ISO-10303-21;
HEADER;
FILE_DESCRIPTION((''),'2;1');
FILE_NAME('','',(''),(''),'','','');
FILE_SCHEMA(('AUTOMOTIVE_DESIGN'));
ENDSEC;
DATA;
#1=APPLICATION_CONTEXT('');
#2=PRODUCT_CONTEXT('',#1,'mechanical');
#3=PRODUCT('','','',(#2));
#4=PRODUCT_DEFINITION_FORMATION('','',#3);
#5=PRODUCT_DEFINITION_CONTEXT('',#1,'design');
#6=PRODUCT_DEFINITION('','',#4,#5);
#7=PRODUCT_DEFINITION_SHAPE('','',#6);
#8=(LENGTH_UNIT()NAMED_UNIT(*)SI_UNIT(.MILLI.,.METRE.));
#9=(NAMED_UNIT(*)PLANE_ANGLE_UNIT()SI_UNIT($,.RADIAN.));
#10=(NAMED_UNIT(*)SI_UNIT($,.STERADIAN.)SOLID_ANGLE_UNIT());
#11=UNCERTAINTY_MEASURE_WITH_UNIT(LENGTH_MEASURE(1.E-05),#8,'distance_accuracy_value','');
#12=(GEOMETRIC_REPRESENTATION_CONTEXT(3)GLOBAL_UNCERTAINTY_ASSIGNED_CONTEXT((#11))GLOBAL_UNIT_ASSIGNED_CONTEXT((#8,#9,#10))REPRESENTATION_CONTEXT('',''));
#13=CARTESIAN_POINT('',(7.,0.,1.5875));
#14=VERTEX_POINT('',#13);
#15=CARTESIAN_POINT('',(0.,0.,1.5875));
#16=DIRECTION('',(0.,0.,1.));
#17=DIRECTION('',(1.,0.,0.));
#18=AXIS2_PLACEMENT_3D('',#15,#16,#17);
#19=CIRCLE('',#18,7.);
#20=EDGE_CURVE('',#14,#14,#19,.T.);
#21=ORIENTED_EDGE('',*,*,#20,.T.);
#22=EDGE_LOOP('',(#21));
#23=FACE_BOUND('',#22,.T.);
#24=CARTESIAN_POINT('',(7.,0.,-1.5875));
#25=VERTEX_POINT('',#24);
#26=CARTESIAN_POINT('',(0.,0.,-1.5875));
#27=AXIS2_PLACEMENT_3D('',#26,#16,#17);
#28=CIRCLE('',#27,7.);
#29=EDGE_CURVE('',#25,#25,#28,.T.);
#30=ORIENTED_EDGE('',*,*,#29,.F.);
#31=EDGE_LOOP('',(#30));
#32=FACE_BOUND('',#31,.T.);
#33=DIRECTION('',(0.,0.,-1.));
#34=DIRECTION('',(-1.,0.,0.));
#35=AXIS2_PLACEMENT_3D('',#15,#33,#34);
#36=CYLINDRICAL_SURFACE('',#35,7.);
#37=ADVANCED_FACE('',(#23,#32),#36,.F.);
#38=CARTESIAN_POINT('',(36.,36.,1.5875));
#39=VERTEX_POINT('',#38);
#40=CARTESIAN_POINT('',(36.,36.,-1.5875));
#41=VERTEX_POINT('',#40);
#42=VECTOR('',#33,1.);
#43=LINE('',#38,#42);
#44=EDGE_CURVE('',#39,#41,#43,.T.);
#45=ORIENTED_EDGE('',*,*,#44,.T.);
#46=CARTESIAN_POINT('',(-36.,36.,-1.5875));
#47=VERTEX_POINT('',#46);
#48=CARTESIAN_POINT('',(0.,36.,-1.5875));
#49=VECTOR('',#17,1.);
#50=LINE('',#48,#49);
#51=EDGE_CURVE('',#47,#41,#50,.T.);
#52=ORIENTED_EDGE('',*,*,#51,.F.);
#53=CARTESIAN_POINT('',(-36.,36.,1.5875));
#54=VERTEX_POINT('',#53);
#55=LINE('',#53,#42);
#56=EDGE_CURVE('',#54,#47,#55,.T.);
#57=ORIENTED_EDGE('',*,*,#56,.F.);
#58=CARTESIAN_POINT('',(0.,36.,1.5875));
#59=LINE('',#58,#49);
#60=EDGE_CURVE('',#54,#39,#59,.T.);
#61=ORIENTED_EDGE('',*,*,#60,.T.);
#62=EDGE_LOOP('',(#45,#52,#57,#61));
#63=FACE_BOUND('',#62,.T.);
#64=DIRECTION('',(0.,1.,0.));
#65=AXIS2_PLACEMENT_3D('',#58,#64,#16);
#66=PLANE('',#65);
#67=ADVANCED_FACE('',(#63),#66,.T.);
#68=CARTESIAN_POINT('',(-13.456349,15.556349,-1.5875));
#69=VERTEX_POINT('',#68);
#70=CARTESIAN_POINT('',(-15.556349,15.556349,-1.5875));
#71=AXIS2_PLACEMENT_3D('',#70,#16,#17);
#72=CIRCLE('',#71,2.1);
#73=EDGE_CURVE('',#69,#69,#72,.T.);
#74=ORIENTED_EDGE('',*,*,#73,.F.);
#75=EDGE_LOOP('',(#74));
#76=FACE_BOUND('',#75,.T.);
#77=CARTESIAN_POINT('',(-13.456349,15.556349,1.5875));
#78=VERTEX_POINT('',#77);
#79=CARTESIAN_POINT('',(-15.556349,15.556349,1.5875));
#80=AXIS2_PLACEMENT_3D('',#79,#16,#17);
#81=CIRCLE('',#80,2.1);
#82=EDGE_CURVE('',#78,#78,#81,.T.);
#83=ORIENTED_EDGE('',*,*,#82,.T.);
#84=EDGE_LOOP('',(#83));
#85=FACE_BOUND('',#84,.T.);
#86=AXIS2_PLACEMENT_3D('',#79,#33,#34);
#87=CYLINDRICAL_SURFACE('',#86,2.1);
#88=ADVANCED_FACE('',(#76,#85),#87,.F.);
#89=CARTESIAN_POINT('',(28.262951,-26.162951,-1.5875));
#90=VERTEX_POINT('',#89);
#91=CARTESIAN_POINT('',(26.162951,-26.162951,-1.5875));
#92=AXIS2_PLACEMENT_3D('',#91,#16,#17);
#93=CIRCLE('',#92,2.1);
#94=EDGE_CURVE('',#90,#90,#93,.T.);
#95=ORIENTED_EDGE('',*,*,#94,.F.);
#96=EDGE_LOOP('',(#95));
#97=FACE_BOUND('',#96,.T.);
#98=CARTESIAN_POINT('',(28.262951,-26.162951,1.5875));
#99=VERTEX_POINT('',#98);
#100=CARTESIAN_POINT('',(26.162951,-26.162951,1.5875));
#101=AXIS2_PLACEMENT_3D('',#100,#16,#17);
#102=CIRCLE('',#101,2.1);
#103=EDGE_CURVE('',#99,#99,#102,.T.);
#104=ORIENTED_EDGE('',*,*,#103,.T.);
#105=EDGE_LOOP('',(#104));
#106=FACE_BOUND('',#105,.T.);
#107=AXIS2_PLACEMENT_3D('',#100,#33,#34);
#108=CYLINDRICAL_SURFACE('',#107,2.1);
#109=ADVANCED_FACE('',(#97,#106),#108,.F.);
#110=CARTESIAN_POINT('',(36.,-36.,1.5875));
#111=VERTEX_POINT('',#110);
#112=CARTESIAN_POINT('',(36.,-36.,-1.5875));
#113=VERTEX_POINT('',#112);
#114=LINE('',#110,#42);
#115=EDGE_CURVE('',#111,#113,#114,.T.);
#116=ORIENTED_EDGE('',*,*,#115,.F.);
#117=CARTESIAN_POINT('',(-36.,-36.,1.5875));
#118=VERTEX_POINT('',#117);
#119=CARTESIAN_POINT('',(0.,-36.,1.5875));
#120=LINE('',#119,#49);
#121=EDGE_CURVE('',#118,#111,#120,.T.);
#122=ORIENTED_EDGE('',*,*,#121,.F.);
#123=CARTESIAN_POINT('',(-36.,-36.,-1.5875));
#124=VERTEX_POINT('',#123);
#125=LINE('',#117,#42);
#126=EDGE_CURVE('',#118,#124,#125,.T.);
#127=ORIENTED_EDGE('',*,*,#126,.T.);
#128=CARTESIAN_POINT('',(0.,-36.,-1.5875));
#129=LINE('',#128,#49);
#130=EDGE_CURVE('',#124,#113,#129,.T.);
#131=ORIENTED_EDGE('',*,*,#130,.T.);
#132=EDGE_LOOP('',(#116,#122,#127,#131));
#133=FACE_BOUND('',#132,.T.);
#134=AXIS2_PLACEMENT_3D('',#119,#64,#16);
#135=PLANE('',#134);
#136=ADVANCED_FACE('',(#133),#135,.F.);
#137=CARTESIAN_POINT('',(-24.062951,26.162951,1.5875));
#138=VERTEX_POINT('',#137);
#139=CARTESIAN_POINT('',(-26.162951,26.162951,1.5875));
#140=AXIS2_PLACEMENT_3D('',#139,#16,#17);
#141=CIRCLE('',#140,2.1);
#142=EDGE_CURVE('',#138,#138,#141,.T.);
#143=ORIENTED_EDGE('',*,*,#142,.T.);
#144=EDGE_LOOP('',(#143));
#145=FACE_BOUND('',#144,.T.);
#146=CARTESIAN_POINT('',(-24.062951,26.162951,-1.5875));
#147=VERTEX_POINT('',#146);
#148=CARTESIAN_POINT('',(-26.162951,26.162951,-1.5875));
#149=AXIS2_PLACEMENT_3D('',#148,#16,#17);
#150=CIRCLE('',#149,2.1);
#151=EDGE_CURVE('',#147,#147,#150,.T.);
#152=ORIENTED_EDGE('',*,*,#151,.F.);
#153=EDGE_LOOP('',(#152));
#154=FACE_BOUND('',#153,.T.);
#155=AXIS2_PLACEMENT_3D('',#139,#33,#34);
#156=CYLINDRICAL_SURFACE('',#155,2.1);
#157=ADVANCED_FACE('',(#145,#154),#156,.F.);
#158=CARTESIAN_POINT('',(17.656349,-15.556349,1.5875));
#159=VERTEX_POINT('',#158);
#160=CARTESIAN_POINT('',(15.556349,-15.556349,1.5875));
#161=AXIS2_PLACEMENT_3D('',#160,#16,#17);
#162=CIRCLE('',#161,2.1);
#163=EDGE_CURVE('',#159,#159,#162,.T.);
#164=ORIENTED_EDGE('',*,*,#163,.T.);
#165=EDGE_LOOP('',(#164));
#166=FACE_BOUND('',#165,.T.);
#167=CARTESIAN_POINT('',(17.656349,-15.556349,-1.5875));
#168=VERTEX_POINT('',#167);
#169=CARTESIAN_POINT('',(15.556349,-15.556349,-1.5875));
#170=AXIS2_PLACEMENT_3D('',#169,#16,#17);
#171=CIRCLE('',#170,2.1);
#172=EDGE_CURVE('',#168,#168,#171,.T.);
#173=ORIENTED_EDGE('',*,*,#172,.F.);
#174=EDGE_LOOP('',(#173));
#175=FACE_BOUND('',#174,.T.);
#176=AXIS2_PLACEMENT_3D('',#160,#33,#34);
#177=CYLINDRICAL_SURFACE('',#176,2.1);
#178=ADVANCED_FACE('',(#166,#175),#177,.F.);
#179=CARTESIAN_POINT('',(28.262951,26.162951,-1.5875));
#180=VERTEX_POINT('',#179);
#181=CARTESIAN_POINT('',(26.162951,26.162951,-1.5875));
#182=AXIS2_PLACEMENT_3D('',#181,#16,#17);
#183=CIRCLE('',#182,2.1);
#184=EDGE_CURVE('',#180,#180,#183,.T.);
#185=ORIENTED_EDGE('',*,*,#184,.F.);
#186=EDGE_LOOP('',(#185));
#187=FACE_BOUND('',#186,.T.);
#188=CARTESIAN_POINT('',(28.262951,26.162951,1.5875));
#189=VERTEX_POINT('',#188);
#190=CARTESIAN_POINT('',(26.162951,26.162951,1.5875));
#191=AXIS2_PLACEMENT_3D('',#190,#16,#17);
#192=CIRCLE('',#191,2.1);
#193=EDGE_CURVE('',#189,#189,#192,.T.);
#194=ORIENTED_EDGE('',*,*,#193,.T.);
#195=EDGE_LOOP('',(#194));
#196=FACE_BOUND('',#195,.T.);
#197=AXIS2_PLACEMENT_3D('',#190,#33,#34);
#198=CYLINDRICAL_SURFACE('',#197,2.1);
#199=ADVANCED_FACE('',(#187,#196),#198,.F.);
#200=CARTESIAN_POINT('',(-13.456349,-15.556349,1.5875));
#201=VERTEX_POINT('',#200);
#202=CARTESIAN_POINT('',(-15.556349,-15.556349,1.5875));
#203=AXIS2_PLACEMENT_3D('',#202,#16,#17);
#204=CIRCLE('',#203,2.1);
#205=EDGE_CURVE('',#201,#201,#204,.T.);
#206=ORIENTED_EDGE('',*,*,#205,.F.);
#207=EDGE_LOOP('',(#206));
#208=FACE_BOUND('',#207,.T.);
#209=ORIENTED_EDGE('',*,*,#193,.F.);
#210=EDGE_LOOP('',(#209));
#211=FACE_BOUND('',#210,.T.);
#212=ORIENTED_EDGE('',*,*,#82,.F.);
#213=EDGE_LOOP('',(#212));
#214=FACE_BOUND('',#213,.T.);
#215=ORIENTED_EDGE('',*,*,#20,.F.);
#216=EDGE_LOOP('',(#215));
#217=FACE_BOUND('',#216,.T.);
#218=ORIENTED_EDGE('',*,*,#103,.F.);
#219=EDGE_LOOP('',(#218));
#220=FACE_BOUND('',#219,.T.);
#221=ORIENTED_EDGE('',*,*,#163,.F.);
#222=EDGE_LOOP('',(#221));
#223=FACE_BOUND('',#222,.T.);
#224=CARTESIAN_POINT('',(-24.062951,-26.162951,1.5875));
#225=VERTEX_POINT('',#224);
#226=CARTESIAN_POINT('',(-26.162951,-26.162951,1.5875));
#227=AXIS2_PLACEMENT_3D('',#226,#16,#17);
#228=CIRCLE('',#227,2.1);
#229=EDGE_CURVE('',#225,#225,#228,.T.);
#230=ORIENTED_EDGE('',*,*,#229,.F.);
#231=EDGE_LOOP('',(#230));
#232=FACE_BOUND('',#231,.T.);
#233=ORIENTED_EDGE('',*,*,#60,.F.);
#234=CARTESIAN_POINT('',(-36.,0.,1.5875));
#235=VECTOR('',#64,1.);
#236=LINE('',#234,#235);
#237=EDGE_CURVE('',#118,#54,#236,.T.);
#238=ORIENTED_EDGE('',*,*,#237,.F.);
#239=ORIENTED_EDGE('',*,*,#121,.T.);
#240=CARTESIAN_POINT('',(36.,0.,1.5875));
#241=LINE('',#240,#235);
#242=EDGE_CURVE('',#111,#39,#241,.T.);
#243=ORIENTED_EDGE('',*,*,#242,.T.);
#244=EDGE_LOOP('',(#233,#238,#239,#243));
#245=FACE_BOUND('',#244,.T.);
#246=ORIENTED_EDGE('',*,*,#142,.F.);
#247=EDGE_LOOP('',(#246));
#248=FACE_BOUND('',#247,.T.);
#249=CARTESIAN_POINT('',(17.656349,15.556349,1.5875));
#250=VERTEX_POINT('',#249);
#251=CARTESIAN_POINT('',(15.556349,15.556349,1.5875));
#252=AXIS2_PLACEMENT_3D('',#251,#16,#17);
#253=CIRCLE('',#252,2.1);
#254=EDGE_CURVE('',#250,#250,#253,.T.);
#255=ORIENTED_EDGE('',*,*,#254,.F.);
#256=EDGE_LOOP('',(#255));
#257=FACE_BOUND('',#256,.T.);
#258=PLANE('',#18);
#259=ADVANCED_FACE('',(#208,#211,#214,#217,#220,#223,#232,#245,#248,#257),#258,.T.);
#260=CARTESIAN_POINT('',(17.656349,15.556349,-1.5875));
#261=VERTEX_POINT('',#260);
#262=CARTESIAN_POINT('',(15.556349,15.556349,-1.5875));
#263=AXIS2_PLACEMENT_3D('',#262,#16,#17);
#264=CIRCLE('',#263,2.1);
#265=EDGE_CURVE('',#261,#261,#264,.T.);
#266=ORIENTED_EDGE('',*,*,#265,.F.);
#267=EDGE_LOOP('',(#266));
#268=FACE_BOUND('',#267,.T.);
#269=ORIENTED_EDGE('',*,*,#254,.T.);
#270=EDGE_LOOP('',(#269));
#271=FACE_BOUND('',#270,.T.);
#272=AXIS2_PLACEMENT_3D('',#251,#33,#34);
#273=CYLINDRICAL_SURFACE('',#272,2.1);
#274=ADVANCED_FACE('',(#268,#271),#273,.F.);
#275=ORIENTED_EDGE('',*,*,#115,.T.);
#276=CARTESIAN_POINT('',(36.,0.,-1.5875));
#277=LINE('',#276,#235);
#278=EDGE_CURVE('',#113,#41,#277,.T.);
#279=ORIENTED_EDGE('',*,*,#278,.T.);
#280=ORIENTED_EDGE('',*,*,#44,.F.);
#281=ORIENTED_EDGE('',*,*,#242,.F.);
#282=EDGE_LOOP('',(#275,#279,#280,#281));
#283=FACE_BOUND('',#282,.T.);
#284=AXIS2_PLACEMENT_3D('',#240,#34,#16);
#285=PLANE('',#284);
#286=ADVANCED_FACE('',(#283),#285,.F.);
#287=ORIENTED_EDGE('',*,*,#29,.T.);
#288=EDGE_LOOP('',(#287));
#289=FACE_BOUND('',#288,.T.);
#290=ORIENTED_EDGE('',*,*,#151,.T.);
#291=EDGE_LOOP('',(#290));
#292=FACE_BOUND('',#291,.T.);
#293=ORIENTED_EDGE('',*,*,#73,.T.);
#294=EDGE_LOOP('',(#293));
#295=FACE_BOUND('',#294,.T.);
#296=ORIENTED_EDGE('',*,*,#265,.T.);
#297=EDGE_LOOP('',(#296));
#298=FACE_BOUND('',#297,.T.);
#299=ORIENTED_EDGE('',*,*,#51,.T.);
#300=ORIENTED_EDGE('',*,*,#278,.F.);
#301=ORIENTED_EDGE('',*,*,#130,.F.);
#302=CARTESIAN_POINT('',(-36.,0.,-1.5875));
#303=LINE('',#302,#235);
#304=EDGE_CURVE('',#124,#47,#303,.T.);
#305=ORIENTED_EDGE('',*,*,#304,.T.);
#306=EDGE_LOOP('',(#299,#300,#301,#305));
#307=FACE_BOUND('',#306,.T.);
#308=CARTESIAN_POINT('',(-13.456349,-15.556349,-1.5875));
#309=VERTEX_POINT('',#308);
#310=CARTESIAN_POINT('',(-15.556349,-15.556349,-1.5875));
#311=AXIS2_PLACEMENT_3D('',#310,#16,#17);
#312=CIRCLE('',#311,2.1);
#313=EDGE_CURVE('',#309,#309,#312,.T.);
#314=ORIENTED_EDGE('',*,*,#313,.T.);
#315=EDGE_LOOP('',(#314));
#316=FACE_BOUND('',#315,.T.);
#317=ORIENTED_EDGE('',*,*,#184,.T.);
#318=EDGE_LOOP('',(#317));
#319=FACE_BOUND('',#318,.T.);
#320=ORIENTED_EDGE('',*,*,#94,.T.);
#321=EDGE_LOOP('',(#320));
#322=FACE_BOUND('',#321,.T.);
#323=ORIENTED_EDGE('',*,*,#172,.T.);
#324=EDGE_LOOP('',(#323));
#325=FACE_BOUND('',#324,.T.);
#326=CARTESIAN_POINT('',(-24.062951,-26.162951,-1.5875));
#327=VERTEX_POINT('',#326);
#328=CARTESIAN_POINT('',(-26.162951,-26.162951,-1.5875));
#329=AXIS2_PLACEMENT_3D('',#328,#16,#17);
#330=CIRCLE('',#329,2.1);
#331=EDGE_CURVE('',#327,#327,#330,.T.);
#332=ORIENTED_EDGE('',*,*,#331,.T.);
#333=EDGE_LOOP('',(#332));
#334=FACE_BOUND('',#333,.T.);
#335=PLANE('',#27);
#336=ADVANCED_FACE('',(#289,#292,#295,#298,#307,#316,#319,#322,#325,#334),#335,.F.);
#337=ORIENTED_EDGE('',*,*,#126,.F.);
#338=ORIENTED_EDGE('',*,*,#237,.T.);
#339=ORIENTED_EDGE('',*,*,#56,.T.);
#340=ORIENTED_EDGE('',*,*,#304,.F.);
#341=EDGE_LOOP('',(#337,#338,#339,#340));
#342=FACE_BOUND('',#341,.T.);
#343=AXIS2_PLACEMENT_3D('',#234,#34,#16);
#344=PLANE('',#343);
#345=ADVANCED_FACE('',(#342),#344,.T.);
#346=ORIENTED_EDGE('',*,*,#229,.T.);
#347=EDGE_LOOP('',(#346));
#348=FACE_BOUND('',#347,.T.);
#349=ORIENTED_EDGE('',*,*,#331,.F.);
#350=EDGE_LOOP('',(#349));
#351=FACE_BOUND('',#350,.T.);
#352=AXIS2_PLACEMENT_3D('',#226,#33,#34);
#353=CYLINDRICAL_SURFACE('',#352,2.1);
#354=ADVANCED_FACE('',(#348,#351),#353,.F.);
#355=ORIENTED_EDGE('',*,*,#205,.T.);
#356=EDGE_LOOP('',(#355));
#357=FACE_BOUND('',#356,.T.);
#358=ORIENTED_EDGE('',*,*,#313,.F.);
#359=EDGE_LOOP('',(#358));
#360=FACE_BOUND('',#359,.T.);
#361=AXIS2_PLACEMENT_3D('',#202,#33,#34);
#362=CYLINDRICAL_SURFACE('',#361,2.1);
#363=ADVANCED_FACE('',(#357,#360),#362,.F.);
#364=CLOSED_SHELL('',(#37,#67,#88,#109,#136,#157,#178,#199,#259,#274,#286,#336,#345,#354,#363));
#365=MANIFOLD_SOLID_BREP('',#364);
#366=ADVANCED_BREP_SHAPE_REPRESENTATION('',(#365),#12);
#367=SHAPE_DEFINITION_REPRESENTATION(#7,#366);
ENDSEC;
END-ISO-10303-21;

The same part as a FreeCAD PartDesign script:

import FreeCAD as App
import Part
import Sketcher

doc = App.newDocument("Part")
params = doc.addObject("Spreadsheet::Sheet", "Params")
for row, (alias, value) in enumerate([
    ("sketch1_diameter", "14 mm"),
    ("sketch1_diameter2", "4.2 mm"),
    ("sketch1_width", "72 mm"),
    ("pad1_length", "3.175 mm"),
], start=1):
    params.set(f"A{row}", alias)
    params.set(f"B{row}", "=" + value)
    params.setAlias(f"B{row}", alias)

body = doc.addObject("PartDesign::Body", "Body")

# Sketch on XY plane
sketch1 = body.newObject("Sketcher::SketchObject", "Sketch")
sketch1.AttachmentSupport = (doc.getObject("XY_Plane"), [""])
sketch1.MapMode = "FlatFace"
sketch1.addGeometry(Part.LineSegment(App.Vector(-36, 36, 0), App.Vector(-36, -36, 0)), False)
sketch1.addGeometry(Part.LineSegment(App.Vector(-36, -36, 0), App.Vector(36, -36, 0)), False)
sketch1.addGeometry(Part.LineSegment(App.Vector(36, -36, 0), App.Vector(36, 36, 0)), False)
sketch1.addGeometry(Part.LineSegment(App.Vector(36, 36, 0), App.Vector(-36, 36, 0)), False)
sketch1.addGeometry(Part.Circle(App.Vector(-26.2, -26.2, 0), App.Vector(0, 0, 1), 2.1), False)
sketch1.addGeometry(Part.Circle(App.Vector(-15.6, -15.6, 0), App.Vector(0, 0, 1), 2.1), False)
sketch1.addGeometry(Part.Circle(App.Vector(26.2, -26.2, 0), App.Vector(0, 0, 1), 2.1), False)
sketch1.addGeometry(Part.Circle(App.Vector(15.6, -15.6, 0), App.Vector(0, 0, 1), 2.1), False)
sketch1.addGeometry(Part.Circle(App.Vector(-15.6, 15.6, 0), App.Vector(0, 0, 1), 2.1), False)
sketch1.addGeometry(Part.Circle(App.Vector(-26.2, 26.2, 0), App.Vector(0, 0, 1), 2.1), False)
sketch1.addGeometry(Part.Circle(App.Vector(0, 0, 0), App.Vector(0, 0, 1), 7), False)
sketch1.addGeometry(Part.Circle(App.Vector(15.6, 15.6, 0), App.Vector(0, 0, 1), 2.1), False)
sketch1.addGeometry(Part.Circle(App.Vector(26.2, 26.2, 0), App.Vector(0, 0, 1), 2.1), False)
sketch1.addConstraint(Sketcher.Constraint("Coincident", 0, 2, 1, 1))
sketch1.addConstraint(Sketcher.Constraint("Coincident", 1, 2, 2, 1))
sketch1.addConstraint(Sketcher.Constraint("Coincident", 2, 2, 3, 1))
sketch1.addConstraint(Sketcher.Constraint("Coincident", 3, 2, 0, 1))
sketch1.addConstraint(Sketcher.Constraint("Vertical", 0))
sketch1.addConstraint(Sketcher.Constraint("Horizontal", 1))
sketch1.addConstraint(Sketcher.Constraint("Vertical", 2))
sketch1.addConstraint(Sketcher.Constraint("Horizontal", 3))
sketch1.addConstraint(Sketcher.Constraint("Coincident", 10, 3, -1, 1))
sketch1.addConstraint(Sketcher.Constraint("Equal", 4, 5))
sketch1.addConstraint(Sketcher.Constraint("Equal", 5, 6))
sketch1.addConstraint(Sketcher.Constraint("Equal", 6, 7))
sketch1.addConstraint(Sketcher.Constraint("Equal", 7, 8))
sketch1.addConstraint(Sketcher.Constraint("Equal", 8, 9))
sketch1.addConstraint(Sketcher.Constraint("Equal", 9, 11))
sketch1.addConstraint(Sketcher.Constraint("Equal", 11, 12))
sketch1.addConstraint(Sketcher.Constraint("Symmetric", 7, 3, 8, 3, -1, 1))
sketch1.addConstraint(Sketcher.Constraint("Symmetric", 6, 3, 9, 3, -1, 1))
sketch1.addConstraint(Sketcher.Constraint("Symmetric", 5, 3, 11, 3, -1, 1))
sketch1.addConstraint(Sketcher.Constraint("Symmetric", 4, 3, 12, 3, -1, 1))
sketch1.addConstraint(Sketcher.Constraint("Symmetric", 0, 2, 2, 2, -1, 1))
sketch1.addConstraint(Sketcher.Constraint("Symmetric", 4, 3, 6, 3, -2))
sketch1.addConstraint(Sketcher.Constraint("Symmetric", 5, 3, 7, 3, -2))
sketch1.addConstraint(Sketcher.Constraint("Equal", 3, 0))
sketch1.addConstraint(Sketcher.Constraint("Diameter", 10, 14.0))
sketch1.addConstraint(Sketcher.Constraint("Diameter", 4, 4.2))
sketch1.addConstraint(Sketcher.Constraint("DistanceX", 1, 1, 1, 2, 72.0))
sketch1.addConstraint(Sketcher.Constraint("DistanceX", 4, 3, 5, 3, 10.606602))
sketch1.addConstraint(Sketcher.Constraint("DistanceY", 4, 3, 5, 3, 10.606602))
sketch1.addConstraint(Sketcher.Constraint("DistanceX", 5, 3, 6, 3, 41.7193))
sketch1.addConstraint(Sketcher.Constraint("DistanceY", 5, 3, 8, 3, 31.112698))
sketch1.setExpression("Constraints[24]", "Params.sketch1_diameter")
sketch1.setExpression("Constraints[25]", "Params.sketch1_diameter2")
sketch1.setExpression("Constraints[26]", "Params.sketch1_width")
pad1 = body.newObject("PartDesign::Pad", "Pad")
pad1.Profile = sketch1
pad1.setExpression("Length", "Params.pad1_length")
pad1.Midplane = True

doc.recompute()
